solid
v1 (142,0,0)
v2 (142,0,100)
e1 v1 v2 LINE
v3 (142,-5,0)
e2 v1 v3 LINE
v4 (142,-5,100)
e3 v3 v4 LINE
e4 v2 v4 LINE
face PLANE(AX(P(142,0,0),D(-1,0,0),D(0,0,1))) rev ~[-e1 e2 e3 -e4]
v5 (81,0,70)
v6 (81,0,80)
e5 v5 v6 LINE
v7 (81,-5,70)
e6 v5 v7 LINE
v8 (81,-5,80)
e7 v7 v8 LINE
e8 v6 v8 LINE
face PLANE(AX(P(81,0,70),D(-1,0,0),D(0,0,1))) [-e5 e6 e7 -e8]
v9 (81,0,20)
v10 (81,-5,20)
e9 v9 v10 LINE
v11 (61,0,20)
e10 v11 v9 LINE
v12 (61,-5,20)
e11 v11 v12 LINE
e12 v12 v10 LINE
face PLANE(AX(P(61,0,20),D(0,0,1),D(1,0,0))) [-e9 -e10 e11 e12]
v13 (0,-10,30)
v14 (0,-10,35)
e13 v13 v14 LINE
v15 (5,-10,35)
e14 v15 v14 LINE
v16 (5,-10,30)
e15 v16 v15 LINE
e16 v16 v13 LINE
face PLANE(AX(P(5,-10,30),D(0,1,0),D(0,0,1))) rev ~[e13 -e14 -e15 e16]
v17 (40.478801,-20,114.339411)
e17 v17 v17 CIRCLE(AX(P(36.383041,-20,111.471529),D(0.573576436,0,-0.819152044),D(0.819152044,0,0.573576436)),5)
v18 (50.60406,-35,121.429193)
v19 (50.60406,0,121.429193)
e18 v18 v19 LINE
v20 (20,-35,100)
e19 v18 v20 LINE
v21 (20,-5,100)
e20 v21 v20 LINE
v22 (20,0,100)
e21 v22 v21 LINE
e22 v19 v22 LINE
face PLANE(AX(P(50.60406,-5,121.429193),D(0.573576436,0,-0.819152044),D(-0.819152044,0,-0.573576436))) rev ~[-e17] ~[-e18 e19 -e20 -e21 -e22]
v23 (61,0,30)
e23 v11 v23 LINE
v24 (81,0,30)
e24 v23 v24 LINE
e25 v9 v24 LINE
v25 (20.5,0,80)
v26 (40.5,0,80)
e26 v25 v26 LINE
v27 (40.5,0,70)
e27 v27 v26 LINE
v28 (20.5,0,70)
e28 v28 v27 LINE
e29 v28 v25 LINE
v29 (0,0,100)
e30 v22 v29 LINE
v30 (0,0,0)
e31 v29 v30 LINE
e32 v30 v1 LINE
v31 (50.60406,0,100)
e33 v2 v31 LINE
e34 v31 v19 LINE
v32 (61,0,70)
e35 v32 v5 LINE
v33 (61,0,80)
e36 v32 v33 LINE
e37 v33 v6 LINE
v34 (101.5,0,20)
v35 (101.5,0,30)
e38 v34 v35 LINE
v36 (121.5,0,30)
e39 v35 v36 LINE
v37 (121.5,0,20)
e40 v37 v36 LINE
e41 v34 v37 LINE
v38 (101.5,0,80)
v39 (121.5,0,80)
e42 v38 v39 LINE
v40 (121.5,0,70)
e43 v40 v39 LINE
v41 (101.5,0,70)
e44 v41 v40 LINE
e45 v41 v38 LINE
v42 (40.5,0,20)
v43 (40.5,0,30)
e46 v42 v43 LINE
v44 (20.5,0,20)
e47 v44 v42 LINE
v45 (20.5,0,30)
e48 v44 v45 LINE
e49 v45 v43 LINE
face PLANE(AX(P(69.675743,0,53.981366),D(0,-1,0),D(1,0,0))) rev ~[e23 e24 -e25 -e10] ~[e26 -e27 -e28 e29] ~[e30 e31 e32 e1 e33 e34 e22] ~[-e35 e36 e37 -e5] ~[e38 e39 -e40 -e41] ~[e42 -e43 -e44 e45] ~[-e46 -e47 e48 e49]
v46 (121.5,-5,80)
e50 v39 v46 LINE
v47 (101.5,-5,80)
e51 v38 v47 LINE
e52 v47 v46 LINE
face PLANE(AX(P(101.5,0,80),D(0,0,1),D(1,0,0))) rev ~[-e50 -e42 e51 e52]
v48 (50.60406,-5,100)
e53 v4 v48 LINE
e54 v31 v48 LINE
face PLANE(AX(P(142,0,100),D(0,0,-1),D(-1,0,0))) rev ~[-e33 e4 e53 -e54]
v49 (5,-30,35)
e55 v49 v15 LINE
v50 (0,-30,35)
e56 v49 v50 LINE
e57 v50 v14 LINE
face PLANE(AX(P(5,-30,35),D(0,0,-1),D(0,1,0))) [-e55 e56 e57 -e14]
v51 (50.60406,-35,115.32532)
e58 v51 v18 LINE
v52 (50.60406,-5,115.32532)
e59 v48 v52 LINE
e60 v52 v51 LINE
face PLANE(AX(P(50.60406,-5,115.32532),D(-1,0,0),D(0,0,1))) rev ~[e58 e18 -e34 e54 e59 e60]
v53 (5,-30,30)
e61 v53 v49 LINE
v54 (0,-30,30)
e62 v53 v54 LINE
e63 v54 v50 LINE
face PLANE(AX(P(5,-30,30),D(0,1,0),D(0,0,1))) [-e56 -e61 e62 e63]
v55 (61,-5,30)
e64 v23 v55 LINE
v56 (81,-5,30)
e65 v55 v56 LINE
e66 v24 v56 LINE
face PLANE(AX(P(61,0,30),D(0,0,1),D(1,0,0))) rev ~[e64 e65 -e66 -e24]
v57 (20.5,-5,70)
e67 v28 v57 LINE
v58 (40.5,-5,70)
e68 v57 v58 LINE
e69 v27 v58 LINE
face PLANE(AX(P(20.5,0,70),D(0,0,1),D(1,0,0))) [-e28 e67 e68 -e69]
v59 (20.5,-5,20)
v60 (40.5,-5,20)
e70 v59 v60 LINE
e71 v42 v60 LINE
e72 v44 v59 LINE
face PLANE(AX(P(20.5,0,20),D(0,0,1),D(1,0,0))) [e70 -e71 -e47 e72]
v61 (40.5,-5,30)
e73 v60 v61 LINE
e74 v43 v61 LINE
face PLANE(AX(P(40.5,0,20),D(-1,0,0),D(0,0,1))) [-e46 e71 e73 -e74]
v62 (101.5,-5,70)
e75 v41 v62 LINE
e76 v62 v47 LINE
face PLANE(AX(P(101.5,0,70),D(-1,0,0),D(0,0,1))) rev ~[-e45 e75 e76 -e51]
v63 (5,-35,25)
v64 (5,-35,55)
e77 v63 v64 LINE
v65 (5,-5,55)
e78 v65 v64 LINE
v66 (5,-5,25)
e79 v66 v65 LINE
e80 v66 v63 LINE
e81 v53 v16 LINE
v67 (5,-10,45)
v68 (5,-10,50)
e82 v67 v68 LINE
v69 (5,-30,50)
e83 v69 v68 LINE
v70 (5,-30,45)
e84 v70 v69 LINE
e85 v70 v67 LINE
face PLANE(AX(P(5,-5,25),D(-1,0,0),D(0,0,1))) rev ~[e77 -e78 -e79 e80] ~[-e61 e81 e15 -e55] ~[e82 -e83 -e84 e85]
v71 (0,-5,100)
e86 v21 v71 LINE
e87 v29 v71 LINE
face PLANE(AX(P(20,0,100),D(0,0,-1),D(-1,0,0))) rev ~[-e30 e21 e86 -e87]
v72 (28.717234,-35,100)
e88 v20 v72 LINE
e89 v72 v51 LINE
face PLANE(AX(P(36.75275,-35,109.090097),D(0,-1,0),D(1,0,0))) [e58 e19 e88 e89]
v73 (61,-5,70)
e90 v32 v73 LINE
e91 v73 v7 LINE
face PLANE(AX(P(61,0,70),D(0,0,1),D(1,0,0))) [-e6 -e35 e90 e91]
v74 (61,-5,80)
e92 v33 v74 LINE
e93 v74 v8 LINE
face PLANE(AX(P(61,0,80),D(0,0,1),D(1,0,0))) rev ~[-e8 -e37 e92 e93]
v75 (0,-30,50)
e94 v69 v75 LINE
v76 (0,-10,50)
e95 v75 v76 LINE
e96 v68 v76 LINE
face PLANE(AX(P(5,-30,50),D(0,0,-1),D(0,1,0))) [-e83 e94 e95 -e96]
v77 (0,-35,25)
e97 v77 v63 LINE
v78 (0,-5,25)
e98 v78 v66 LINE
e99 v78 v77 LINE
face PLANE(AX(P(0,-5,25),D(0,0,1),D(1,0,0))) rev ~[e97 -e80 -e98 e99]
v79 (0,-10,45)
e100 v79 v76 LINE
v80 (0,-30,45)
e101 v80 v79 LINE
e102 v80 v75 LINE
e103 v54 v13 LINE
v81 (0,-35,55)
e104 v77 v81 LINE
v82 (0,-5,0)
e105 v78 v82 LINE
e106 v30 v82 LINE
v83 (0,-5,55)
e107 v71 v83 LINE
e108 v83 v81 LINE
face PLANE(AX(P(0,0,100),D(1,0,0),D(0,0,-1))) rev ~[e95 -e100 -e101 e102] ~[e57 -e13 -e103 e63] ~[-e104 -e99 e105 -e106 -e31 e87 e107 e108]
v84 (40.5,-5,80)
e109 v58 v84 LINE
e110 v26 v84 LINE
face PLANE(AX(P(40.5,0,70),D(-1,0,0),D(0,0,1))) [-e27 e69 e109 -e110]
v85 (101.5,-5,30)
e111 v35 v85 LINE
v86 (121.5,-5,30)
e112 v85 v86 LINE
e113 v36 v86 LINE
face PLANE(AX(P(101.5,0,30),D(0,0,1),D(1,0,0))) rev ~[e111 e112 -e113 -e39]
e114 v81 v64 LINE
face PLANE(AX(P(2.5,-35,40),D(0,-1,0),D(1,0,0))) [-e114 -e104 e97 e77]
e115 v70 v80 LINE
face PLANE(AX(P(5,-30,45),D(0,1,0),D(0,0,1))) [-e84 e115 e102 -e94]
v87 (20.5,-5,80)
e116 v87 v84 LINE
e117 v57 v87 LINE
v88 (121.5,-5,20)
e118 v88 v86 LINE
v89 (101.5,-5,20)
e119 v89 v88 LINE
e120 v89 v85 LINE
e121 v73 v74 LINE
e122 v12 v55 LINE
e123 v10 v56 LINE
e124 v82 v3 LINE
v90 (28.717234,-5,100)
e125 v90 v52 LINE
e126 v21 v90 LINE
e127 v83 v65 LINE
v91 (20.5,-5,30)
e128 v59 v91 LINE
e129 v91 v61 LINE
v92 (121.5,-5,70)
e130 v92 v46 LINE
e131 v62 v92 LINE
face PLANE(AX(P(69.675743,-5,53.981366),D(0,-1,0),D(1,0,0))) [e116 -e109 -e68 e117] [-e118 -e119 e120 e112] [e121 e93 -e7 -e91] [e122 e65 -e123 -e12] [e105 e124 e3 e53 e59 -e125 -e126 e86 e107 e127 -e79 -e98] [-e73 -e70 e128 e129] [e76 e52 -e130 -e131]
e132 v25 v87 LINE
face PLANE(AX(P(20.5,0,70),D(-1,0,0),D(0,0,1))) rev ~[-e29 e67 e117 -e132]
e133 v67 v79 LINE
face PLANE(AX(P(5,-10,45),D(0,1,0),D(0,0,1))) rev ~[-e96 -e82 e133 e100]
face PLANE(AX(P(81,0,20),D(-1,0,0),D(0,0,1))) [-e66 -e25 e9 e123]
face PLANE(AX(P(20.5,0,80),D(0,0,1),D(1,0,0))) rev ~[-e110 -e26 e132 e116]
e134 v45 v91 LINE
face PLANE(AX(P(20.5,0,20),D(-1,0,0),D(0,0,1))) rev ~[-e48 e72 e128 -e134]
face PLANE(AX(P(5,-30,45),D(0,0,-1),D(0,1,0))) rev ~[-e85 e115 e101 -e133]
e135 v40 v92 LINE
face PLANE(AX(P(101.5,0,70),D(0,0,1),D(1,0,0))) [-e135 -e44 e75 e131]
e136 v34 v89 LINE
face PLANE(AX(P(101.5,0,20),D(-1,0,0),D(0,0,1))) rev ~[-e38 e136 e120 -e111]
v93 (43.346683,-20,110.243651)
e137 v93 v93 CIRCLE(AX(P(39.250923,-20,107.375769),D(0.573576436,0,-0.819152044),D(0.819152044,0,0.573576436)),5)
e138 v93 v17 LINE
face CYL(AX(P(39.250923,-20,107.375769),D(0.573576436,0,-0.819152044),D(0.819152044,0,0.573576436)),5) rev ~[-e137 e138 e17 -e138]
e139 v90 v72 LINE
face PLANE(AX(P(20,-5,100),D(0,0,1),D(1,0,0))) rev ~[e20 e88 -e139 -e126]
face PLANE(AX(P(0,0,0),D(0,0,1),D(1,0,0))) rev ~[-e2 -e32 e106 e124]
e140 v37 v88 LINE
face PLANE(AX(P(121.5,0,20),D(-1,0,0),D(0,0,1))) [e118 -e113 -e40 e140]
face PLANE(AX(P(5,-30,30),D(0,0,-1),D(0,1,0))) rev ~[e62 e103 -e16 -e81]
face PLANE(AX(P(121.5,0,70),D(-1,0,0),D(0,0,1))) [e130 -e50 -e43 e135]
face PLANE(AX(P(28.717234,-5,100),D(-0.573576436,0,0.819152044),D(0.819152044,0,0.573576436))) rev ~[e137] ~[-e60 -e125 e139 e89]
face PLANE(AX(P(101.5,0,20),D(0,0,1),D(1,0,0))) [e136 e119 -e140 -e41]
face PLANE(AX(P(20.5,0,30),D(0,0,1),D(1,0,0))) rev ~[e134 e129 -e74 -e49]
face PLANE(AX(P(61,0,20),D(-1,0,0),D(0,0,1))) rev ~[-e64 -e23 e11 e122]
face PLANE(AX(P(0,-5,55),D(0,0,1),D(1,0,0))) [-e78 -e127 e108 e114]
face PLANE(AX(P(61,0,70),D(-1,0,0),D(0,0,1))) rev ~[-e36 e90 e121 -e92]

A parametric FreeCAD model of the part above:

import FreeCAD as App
import Part
import Sketcher

V = App.Vector
Q = App.Units.Quantity


def add_polygon(sketch, points):
    """Adds a closed chain of lines whose ends are joined by coincident constraints."""
    first, n = sketch.GeometryCount, len(points)
    for a, b in zip(points, points[1:] + points[:1]):
        sketch.addGeometry(Part.LineSegment(App.Vector(*a, 0), App.Vector(*b, 0)), False)
    for i in range(n):
        sketch.addConstraint(Sketcher.Constraint("Coincident", first + i, 2, first + (i + 1) % n, 1))

doc = App.newDocument("Part")
params = doc.addObject("Spreadsheet::Sheet", "Params")
for row, (alias, value) in enumerate([
    ("sketch1_width", "142 mm"),
    ("sketch1_width2", "20 mm"),
    ("sketch1_height", "100 mm"),
    ("sketch1_height2", "10 mm"),
    ("pad1_length", "5 mm"),
    ("sketch2_width", "5 mm"),
    ("sketch2_height", "30 mm"),
    ("pad2_length", "30 mm"),
    ("sketch3_width", "20 mm"),
    ("sketch3_height", "5 mm"),
    ("sketch4_diameter", "10 mm"),
], start=1):
    params.set(f"A{row}", alias)
    params.set(f"B{row}", "=" + value)
    params.setAlias(f"B{row}", alias)

body = doc.addObject("PartDesign::Body", "Body")

sketch1 = body.newObject("Sketcher::SketchObject", "Sketch")
sketch1.AttachmentSupport = (doc.getObject("XZ_Plane"), [""])
sketch1.MapMode = "FlatFace"
add_polygon(sketch1, [(0, 100), (0, 0), (142, 0), (142, 100), (51, 100), (51, 121), (20, 100)])
add_polygon(sketch1, [(40, 20), (20, 20), (20, 30), (40, 30)])
add_polygon(sketch1, [(81, 20), (61, 20), (61, 30), (81, 30)])
add_polygon(sketch1, [(122, 20), (102, 20), (102, 30), (122, 30)])
add_polygon(sketch1, [(40, 70), (20, 70), (20, 80), (40, 80)])
add_polygon(sketch1, [(81, 70), (61, 70), (61, 80), (81, 80)])
add_polygon(sketch1, [(122, 70), (102, 70), (102, 80), (122, 80)])
sketch1.addConstraint(Sketcher.Constraint("Vertical", 0))
sketch1.addConstraint(Sketcher.Constraint("Horizontal", 1))
sketch1.addConstraint(Sketcher.Constraint("Vertical", 2))
sketch1.addConstraint(Sketcher.Constraint("Horizontal", 3))
sketch1.addConstraint(Sketcher.Constraint("Vertical", 4))
sketch1.addConstraint(Sketcher.Constraint("Horizontal", 6))
sketch1.addConstraint(Sketcher.Constraint("Horizontal", 7))
sketch1.addConstraint(Sketcher.Constraint("Vertical", 8))
sketch1.addConstraint(Sketcher.Constraint("Horizontal", 9))
sketch1.addConstraint(Sketcher.Constraint("Vertical", 10))
sketch1.addConstraint(Sketcher.Constraint("Horizontal", 11))
sketch1.addConstraint(Sketcher.Constraint("Vertical", 12))
sketch1.addConstraint(Sketcher.Constraint("Horizontal", 13))
sketch1.addConstraint(Sketcher.Constraint("Vertical", 14))
sketch1.addConstraint(Sketcher.Constraint("Horizontal", 15))
sketch1.addConstraint(Sketcher.Constraint("Vertical", 16))
sketch1.addConstraint(Sketcher.Constraint("Horizontal", 17))
sketch1.addConstraint(Sketcher.Constraint("Vertical", 18))
sketch1.addConstraint(Sketcher.Constraint("Horizontal", 19))
sketch1.addConstraint(Sketcher.Constraint("Vertical", 20))
sketch1.addConstraint(Sketcher.Constraint("Horizontal", 21))
sketch1.addConstraint(Sketcher.Constraint("Vertical", 22))
sketch1.addConstraint(Sketcher.Constraint("Horizontal", 23))
sketch1.addConstraint(Sketcher.Constraint("Vertical", 24))
sketch1.addConstraint(Sketcher.Constraint("Horizontal", 25))
sketch1.addConstraint(Sketcher.Constraint("Vertical", 26))
sketch1.addConstraint(Sketcher.Constraint("Horizontal", 27))
sketch1.addConstraint(Sketcher.Constraint("Vertical", 28))
sketch1.addConstraint(Sketcher.Constraint("Horizontal", 29))
sketch1.addConstraint(Sketcher.Constraint("Vertical", 30))
sketch1.addConstraint(Sketcher.Constraint("Coincident", 0, 2, -1, 1))
sketch1.addConstraint(Sketcher.Constraint("Horizontal", 3, 2, 5, 2))
sketch1.addConstraint(Sketcher.Constraint("Horizontal", 10, 2, 11, 2))
sketch1.addConstraint(Sketcher.Constraint("Horizontal", 9, 2, 12, 2))
sketch1.addConstraint(Sketcher.Constraint("Horizontal", 14, 2, 15, 2))
sketch1.addConstraint(Sketcher.Constraint("Horizontal", 13, 2, 16, 2))
sketch1.addConstraint(Sketcher.Constraint("Horizontal", 22, 2, 23, 2))
sketch1.addConstraint(Sketcher.Constraint("Horizontal", 21, 2, 24, 2))
sketch1.addConstraint(Sketcher.Constraint("Horizontal", 26, 2, 27, 2))
sketch1.addConstraint(Sketcher.Constraint("Horizontal", 25, 2, 28, 2))
sketch1.addConstraint(Sketcher.Constraint("Vertical", 8, 2, 19, 2))
sketch1.addConstraint(Sketcher.Constraint("Vertical", 10, 2, 21, 2))
sketch1.addConstraint(Sketcher.Constraint("Vertical", 12, 2, 23, 2))
sketch1.addConstraint(Sketcher.Constraint("Vertical", 14, 2, 25, 2))
sketch1.addConstraint(Sketcher.Constraint("Vertical", 16, 2, 27, 2))
sketch1.addConstraint(Sketcher.Constraint("Vertical", 18, 2, 29, 2))
sketch1.addConstraint(Sketcher.Constraint("Equal", 6, 7))
sketch1.addConstraint(Sketcher.Constraint("Equal", 9, 11))
sketch1.addConstraint(Sketcher.Constraint("Equal", 13, 15))
sketch1.addConstraint(Sketcher.Constraint("Equal", 18, 20))
sketch1.addConstraint(Sketcher.Constraint("DistanceX", 1, 1, 1, 2, 142.0))
sketch1.addConstraint(Sketcher.Constraint("DistanceX", 6, 2, 6, 1, 20.0))
sketch1.addConstraint(Sketcher.Constraint("DistanceY", 0, 2, 0, 1, 100.0))
sketch1.addConstraint(Sketcher.Constraint("DistanceY", 8, 1, 8, 2, 10.0))
sketch1.addConstraint(Sketcher.Constraint("Angle", 5, Q("-145 deg")))
sketch1.addConstraint(Sketcher.Constraint("DistanceY", -1, 1, 7, 2, 20.0))
sketch1.addConstraint(Sketcher.Constraint("DistanceX", -1, 1, 11, 2, 61.0))
sketch1.addConstraint(Sketcher.Constraint("DistanceY", -1, 1, 19, 2, 70.0))
sketch1.addConstraint(Sketcher.Constraint("DistanceX", -1, 1, 7, 2, 20.5))
sketch1.addConstraint(Sketcher.Constraint("DistanceX", -1, 1, 15, 2, 101.5))
sketch1.addConstraint(Sketcher.Constraint("DistanceX", 3, 2, 3, 1, 91.39594))
sketch1.setExpression("Constraints[81]", "Params.sketch1_width")
sketch1.setExpression("Constraints[82]", "Params.sketch1_width2")
sketch1.setExpression("Constraints[83]", "Params.sketch1_height")
sketch1.setExpression("Constraints[84]", "Params.sketch1_height2")
pad1 = body.newObject("PartDesign::Pad", "Pad")
pad1.Profile = sketch1
pad1.setExpression("Length", "Params.pad1_length")

sketch2 = body.newObject("Sketcher::SketchObject", "Sketch001")
sketch2.AttachmentSupport = (doc.getObject("XZ_Plane"), [""])
sketch2.MapMode = "FlatFace"
sketch2.AttachmentOffset = App.Placement(V(0, 0, 5), App.Rotation())
add_polygon(sketch2, [(0, 55), (0, 25), (5, 25), (5, 55)])
add_polygon(sketch2, [(51, 121), (20, 100), (29, 100), (51, 115)])
sketch2.addConstraint(Sketcher.Constraint("Vertical", 0))
sketch2.addConstraint(Sketcher.Constraint("Horizontal", 1))
sketch2.addConstraint(Sketcher.Constraint("Vertical", 2))
sketch2.addConstraint(Sketcher.Constraint("Horizontal", 3))
sketch2.addConstraint(Sketcher.Constraint("Horizontal", 5))
sketch2.addConstraint(Sketcher.Constraint("Vertical", 7))
sketch2.addConstraint(Sketcher.Constraint("PointOnObject", 0, 2, -2))
sketch2.addConstraint(Sketcher.Constraint("Parallel", 4, 6))
sketch2.addConstraint(Sketcher.Constraint("DistanceX", 1, 1, 1, 2, 5.0))
sketch2.addConstraint(Sketcher.Constraint("DistanceY", 0, 2, 0, 1, 30.0))
sketch2.addConstraint(Sketcher.Constraint("Angle", 4, Q("-145 deg")))
sketch2.addConstraint(Sketcher.Constraint("DistanceY", -1, 1, 0, 2, 25.0))
sketch2.addConstraint(Sketcher.Constraint("DistanceX", -1, 1, 4, 2, 20.0))
sketch2.addConstraint(Sketcher.Constraint("DistanceY", -1, 1, 4, 2, 100.0))
sketch2.addConstraint(Sketcher.Constraint("Distance", 4, 37.360658))
sketch2.addConstraint(Sketcher.Constraint("Distance", 6, 26.718881))
sketch2.setExpression("Constraints[16]", "Params.sketch2_width")
sketch2.setExpression("Constraints[17]", "Params.sketch2_height")
pad2 = body.newObject("PartDesign::Pad", "Pad001")
pad2.Profile = sketch2
pad2.setExpression("Length", "Params.pad2_length")

sketch3 = body.newObject("Sketcher::SketchObject", "Sketch002")
sketch3.AttachmentSupport = (doc.getObject("YZ_Plane"), [""])
sketch3.MapMode = "FlatFace"
sketch3.AttachmentOffset = App.Placement(V(0, 0, 5), App.Rotation())
add_polygon(sketch3, [(-30, 50), (-30, 45), (-10, 45), (-10, 50)])
add_polygon(sketch3, [(-30, 35), (-30, 30), (-10, 30), (-10, 35)])
sketch3.addConstraint(Sketcher.Constraint("Vertical", 0))
sketch3.addConstraint(Sketcher.Constraint("Horizontal", 1))
sketch3.addConstraint(Sketcher.Constraint("Vertical", 2))
sketch3.addConstraint(Sketcher.Constraint("Horizontal", 3))
sketch3.addConstraint(Sketcher.Constraint("Vertical", 4))
sketch3.addConstraint(Sketcher.Constraint("Horizontal", 5))
sketch3.addConstraint(Sketcher.Constraint("Vertical", 6))
sketch3.addConstraint(Sketcher.Constraint("Horizontal", 7))
sketch3.addConstraint(Sketcher.Constraint("Vertical", 3, 2, 4, 2))
sketch3.addConstraint(Sketcher.Constraint("Vertical", 2, 2, 5, 2))
sketch3.addConstraint(Sketcher.Constraint("Equal", 2, 4))
sketch3.addConstraint(Sketcher.Constraint("DistanceX", 1, 1, 1, 2, 20.0))
sketch3.addConstraint(Sketcher.Constraint("DistanceY", 0, 2, 0, 1, 5.0))
sketch3.addConstraint(Sketcher.Constraint("DistanceX", 0, 2, -1, 1, 30.0))
sketch3.addConstraint(Sketcher.Constraint("DistanceY", -1, 1, 0, 2, 45.0))
sketch3.addConstraint(Sketcher.Constraint("DistanceY", -1, 1, 4, 2, 30.0))
sketch3.setExpression("Constraints[19]", "Params.sketch3_width")
sketch3.setExpression("Constraints[20]", "Params.sketch3_height")
pocket1 = body.newObject("PartDesign::Pocket", "Pocket")
pocket1.Profile = sketch3
pocket1.Type = "ThroughAll"

sketch4 = body.newObject("Sketcher::SketchObject", "Sketch003")
sketch4.Placement = App.Placement(V(-37.53695, 0, 53.608321), App.Rotation(V(0.819152044, 0, 0.573576436), V(0, -0.999999999, 0), V(0.573576436, 0, -0.819152044), "ZXY"))
sketch4.addGeometry(Part.Circle(V(94, 20, 0), V(0, 0, 1), 5), False)
sketch4.addConstraint(Sketcher.Constraint("Diameter", 0, 10.0))
sketch4.addConstraint(Sketcher.Constraint("DistanceY", -1, 1, 0, 3, 20.0))
sketch4.addConstraint(Sketcher.Constraint("DistanceX", -1, 1, 0, 3, 93.740684))
sketch4.setExpression("Constraints[0]", "Params.sketch4_diameter")
pocket2 = body.newObject("PartDesign::Pocket", "Pocket001")
pocket2.Profile = sketch4
pocket2.Type = "ThroughAll"

doc.recompute()
